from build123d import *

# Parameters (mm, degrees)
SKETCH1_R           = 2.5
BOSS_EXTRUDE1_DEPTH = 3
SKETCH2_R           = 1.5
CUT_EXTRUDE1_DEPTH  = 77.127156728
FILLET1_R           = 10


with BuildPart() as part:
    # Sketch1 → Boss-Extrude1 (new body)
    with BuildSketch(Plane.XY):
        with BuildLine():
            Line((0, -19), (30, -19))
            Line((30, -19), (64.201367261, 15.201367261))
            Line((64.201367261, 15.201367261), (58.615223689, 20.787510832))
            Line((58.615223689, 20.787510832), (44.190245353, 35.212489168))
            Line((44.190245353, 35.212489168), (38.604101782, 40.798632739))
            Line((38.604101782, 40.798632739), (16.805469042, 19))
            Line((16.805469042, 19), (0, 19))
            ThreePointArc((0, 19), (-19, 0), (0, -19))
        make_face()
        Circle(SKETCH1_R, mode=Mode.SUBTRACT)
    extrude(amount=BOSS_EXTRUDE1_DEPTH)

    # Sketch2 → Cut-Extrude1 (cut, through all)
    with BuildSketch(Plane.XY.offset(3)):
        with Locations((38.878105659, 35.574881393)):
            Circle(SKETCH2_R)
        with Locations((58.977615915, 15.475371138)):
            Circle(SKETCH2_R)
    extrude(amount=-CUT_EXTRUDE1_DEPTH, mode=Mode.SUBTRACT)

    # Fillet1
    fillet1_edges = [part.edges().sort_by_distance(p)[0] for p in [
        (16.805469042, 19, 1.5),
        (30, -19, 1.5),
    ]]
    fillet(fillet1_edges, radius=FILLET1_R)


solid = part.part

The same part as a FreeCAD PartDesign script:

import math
import FreeCAD as App
import Part
import Sketcher
Q = App.Units.Quantity


def edges_at(feature, points):
    """Names of the edges that pass closest to the given points."""
    edges = feature.Shape.Edges
    near = lambda p: min(range(len(edges)), key=lambda i: edges[i].distToShape(Part.Vertex(*p))[0])
    return sorted({f"Edge{near(p) + 1}" for p in points})

doc = App.newDocument("Part")
body = doc.addObject("PartDesign::Body", "Body")

# Sketch on XY plane
sketch1 = body.newObject("Sketcher::SketchObject", "Sketch")
sketch1.AttachmentSupport = (doc.getObject("XY_Plane"), [""])
sketch1.MapMode = "FlatFace"
sketch1.addGeometry(Part.LineSegment(App.Vector(0, -19, 0), App.Vector(30, -19, 0)), False)
sketch1.addGeometry(Part.LineSegment(App.Vector(30, -19, 0), App.Vector(64.201367, 15.201367, 0)), False)
sketch1.addGeometry(Part.LineSegment(App.Vector(64.201367, 15.201367, 0), App.Vector(58.615224, 20.787511, 0)), False)
sketch1.addGeometry(Part.LineSegment(App.Vector(58.615224, 20.787511, 0), App.Vector(38.604102, 40.798633, 0)), False)
sketch1.addGeometry(Part.LineSegment(App.Vector(38.604102, 40.798633, 0), App.Vector(16.805469, 19, 0)), False)
sketch1.addGeometry(Part.LineSegment(App.Vector(16.805469, 19, 0), App.Vector(0, 19, 0)), False)
sketch1.addGeometry(Part.ArcOfCircle(Part.Circle(App.Vector(0, 0, 0), App.Vector(0, 0, 1), 19), math.radians(90), math.radians(270)), False)
sketch1.addGeometry(Part.Circle(App.Vector(0, 0, 0), App.Vector(0, 0, 1), 2.5), False)
sketch1.addConstraint(Sketcher.Constraint("Coincident", 0, 2, 1, 1))
sketch1.addConstraint(Sketcher.Constraint("Coincident", 1, 2, 2, 1))
sketch1.addConstraint(Sketcher.Constraint("Coincident", 2, 2, 3, 1))
sketch1.addConstraint(Sketcher.Constraint("Coincident", 3, 2, 4, 1))
sketch1.addConstraint(Sketcher.Constraint("Coincident", 4, 2, 5, 1))
sketch1.addConstraint(Sketcher.Constraint("Tangent", 5, 2, 6, 1))
sketch1.addConstraint(Sketcher.Constraint("Tangent", 6, 2, 0, 1))
sketch1.addConstraint(Sketcher.Constraint("Horizontal", 0))
sketch1.addConstraint(Sketcher.Constraint("Horizontal", 5))
sketch1.addConstraint(Sketcher.Constraint("Coincident", 6, 3, -1, 1))
sketch1.addConstraint(Sketcher.Constraint("Coincident", 7, 3, -1, 1))
sketch1.addConstraint(Sketcher.Constraint("Perpendicular", 1, 2))
sketch1.addConstraint(Sketcher.Constraint("Parallel", 2, 3))
sketch1.addConstraint(Sketcher.Constraint("Perpendicular", 3, 4))
sketch1.addConstraint(Sketcher.Constraint("Diameter", 7, 5.0))
sketch1.addConstraint(Sketcher.Constraint("Radius", 6, 19.0))
sketch1.addConstraint(Sketcher.Constraint("DistanceX", 0, 1, 0, 2, 30.0))
sketch1.addConstraint(Sketcher.Constraint("Angle", 1, Q("45 deg")))
sketch1.addConstraint(Sketcher.Constraint("Distance", 2, 7.9))
sketch1.addConstraint(Sketcher.Constraint("Distance", 3, 28.3))
sketch1.addConstraint(Sketcher.Constraint("DistanceX", -1, 1, 3, 2, 38.604102))
pad1 = body.newObject("PartDesign::Pad", "Pad")
pad1.Profile = sketch1
pad1.Length = 3

# Sketch on XY plane
sketch2 = body.newObject("Sketcher::SketchObject", "Sketch001")
sketch2.AttachmentSupport = (doc.getObject("XY_Plane"), [""])
sketch2.MapMode = "FlatFace"
sketch2.AttachmentOffset = App.Placement(App.Vector(0, 0, 3), App.Rotation())
sketch2.addGeometry(Part.Circle(App.Vector(38.878106, 35.574881, 0), App.Vector(0, 0, 1), 1.5), False)
sketch2.addGeometry(Part.Circle(App.Vector(58.977616, 15.475371, 0), App.Vector(0, 0, 1), 1.5), False)
sketch2.addConstraint(Sketcher.Constraint("Equal", 0, 1))
sketch2.addConstraint(Sketcher.Constraint("Diameter", 0, 3.0))
sketch2.addConstraint(Sketcher.Constraint("DistanceY", -1, 1, 0, 3, 35.574881))
sketch2.addConstraint(Sketcher.Constraint("DistanceY", -1, 1, 1, 3, 15.475371))
sketch2.addConstraint(Sketcher.Constraint("DistanceX", 0, 3, 1, 3, 20.09951))
sketch2.addConstraint(Sketcher.Constraint("DistanceX", -1, 1, 0, 3, 38.878106))
pocket1 = body.newObject("PartDesign::Pocket", "Pocket")
pocket1.Profile = sketch2
pocket1.Type = "ThroughAll"
doc.recompute()

fillet = body.newObject("PartDesign::Fillet", "Fillet")
fillet.Base = (pocket1, edges_at(pocket1, [(16.805, 19, 1.5), (30, -19, 1.5)]))
fillet.Radius = 10

doc.recompute()
